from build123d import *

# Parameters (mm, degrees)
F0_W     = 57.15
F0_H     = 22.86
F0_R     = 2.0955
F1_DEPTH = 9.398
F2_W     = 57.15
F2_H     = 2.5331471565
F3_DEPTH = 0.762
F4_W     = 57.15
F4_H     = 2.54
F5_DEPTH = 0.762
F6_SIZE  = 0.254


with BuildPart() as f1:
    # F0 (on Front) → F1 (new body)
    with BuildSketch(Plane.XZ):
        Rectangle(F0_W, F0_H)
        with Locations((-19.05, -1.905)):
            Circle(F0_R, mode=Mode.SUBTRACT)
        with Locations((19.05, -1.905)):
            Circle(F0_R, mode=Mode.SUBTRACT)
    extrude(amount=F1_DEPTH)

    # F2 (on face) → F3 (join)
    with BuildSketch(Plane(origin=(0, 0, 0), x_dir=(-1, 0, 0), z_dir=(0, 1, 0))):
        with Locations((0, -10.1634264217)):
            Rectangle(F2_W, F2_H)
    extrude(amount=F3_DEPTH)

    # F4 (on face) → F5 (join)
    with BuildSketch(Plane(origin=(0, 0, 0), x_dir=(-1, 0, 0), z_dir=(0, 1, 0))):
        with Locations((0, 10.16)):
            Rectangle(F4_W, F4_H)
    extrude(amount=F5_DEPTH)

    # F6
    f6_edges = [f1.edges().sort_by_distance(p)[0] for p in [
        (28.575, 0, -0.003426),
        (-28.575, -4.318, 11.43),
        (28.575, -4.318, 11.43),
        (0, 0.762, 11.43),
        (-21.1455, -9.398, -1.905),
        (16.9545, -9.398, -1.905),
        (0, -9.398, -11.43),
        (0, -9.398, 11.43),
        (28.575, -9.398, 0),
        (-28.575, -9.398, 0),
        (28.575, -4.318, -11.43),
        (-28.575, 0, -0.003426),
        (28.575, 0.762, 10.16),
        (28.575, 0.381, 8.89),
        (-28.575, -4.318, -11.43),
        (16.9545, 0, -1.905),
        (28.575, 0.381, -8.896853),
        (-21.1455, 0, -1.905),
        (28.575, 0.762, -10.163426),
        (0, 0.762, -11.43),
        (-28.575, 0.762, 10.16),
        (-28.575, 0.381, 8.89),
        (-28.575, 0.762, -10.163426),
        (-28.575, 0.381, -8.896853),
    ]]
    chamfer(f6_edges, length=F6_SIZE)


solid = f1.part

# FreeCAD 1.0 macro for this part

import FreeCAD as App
import Part
import Sketcher
Q = App.Units.Quantity


def edges_at(feature, points):
    """Names of the edges that pass closest to the given points."""
    edges = feature.Shape.Edges
    near = lambda p: min(range(len(edges)), key=lambda i: edges[i].distToShape(Part.Vertex(*p))[0])
    return sorted({f"Edge{near(p) + 1}" for p in points})

doc = App.newDocument("Part")
body = doc.addObject("PartDesign::Body", "Body")

# Sketch on XZ plane
sketch1 = body.newObject("Sketcher::SketchObject", "Sketch")
sketch1.AttachmentSupport = (doc.getObject("XZ_Plane"), [""])
sketch1.MapMode = "FlatFace"
sketch1.addGeometry(Part.LineSegment(App.Vector(-28.6, 11.4, 0), App.Vector(-28.6, -11.4, 0)), False)
sketch1.addGeometry(Part.LineSegment(App.Vector(-28.6, -11.4, 0), App.Vector(28.6, -11.4, 0)), False)
sketch1.addGeometry(Part.LineSegment(App.Vector(28.6, -11.4, 0), App.Vector(28.6, 11.4, 0)), False)
sketch1.addGeometry(Part.LineSegment(App.Vector(28.6, 11.4, 0), App.Vector(-28.6, 11.4, 0)), False)
sketch1.addGeometry(Part.Circle(App.Vector(-19.1, -1.9, 0), App.Vector(0, 0, 1), 2.1), False)
sketch1.addGeometry(Part.Circle(App.Vector(19.1, -1.9, 0), App.Vector(0, 0, 1), 2.1), False)
sketch1.addConstraint(Sketcher.Constraint("Coincident", 0, 2, 1, 1))
sketch1.addConstraint(Sketcher.Constraint("Coincident", 1, 2, 2, 1))
sketch1.addConstraint(Sketcher.Constraint("Coincident", 2, 2, 3, 1))
sketch1.addConstraint(Sketcher.Constraint("Coincident", 3, 2, 0, 1))
sketch1.addConstraint(Sketcher.Constraint("Vertical", 0))
sketch1.addConstraint(Sketcher.Constraint("Horizontal", 1))
sketch1.addConstraint(Sketcher.Constraint("Vertical", 2))
sketch1.addConstraint(Sketcher.Constraint("Horizontal", 3))
sketch1.addConstraint(Sketcher.Constraint("Equal", 4, 5))
sketch1.addConstraint(Sketcher.Constraint("Symmetric", 0, 2, 2, 2, -1, 1))
sketch1.addConstraint(Sketcher.Constraint("Symmetric", 4, 3, 5, 3, -2))
sketch1.addConstraint(Sketcher.Constraint("Diameter", 4, Q("0.165 in")))
sketch1.addConstraint(Sketcher.Constraint("DistanceY", 0, 2, 0, 1, Q("0.9 in")))
sketch1.addConstraint(Sketcher.Constraint("DistanceX", 1, 1, 1, 2, Q("2.25 in")))
sketch1.addConstraint(Sketcher.Constraint("DistanceX", 4, 3, 5, 3, Q("1.5 in")))
sketch1.addConstraint(Sketcher.Constraint("DistanceY", 4, 3, -1, 1, Q("0.075 in")))
pad1 = body.newObject("PartDesign::Pad", "Pad")
pad1.Profile = sketch1
pad1.Length = Q("0.37 in")

# Sketch on XZ plane
sketch2 = body.newObject("Sketcher::SketchObject", "Sketch001")
sketch2.AttachmentSupport = (doc.getObject("XZ_Plane"), [""])
sketch2.MapMode = "FlatFace"
sketch2.addGeometry(Part.LineSegment(App.Vector(28.6, -8.9, 0), App.Vector(28.6, -11.4, 0)), False)
sketch2.addGeometry(Part.LineSegment(App.Vector(28.6, -11.4, 0), App.Vector(-28.6, -11.4, 0)), False)
sketch2.addGeometry(Part.LineSegment(App.Vector(-28.6, -11.4, 0), App.Vector(-28.6, -8.9, 0)), False)
sketch2.addGeometry(Part.LineSegment(App.Vector(-28.6, -8.9, 0), App.Vector(28.6, -8.9, 0)), False)
sketch2.addConstraint(Sketcher.Constraint("Coincident", 0, 2, 1, 1))
sketch2.addConstraint(Sketcher.Constraint("Coincident", 1, 2, 2, 1))
sketch2.addConstraint(Sketcher.Constraint("Coincident", 2, 2, 3, 1))
sketch2.addConstraint(Sketcher.Constraint("Coincident", 3, 2, 0, 1))
sketch2.addConstraint(Sketcher.Constraint("Vertical", 0))
sketch2.addConstraint(Sketcher.Constraint("Horizontal", 1))
sketch2.addConstraint(Sketcher.Constraint("Vertical", 2))
sketch2.addConstraint(Sketcher.Constraint("Horizontal", 3))
sketch2.addConstraint(Sketcher.Constraint("DistanceX", 1, 2, 1, 1, Q("2.25 in")))
sketch2.addConstraint(Sketcher.Constraint("DistanceY", 0, 2, -1, 1, Q("0.45 in")))
sketch2.addConstraint(Sketcher.Constraint("DistanceX", -1, 1, 0, 2, Q("1.125 in")))
sketch2.addConstraint(Sketcher.Constraint("DistanceY", 0, 2, 0, 1, Q("2.533147 mm")))
pad2 = body.newObject("PartDesign::Pad", "Pad001")
pad2.Profile = sketch2
pad2.Length = Q("0.03 in")
pad2.Reversed = True

# Sketch on XZ plane
sketch3 = body.newObject("Sketcher::SketchObject", "Sketch002")
sketch3.AttachmentSupport = (doc.getObject("XZ_Plane"), [""])
sketch3.MapMode = "FlatFace"
sketch3.addGeometry(Part.LineSegment(App.Vector(28.6, 11.4, 0), App.Vector(28.6, 8.9, 0)), False)
sketch3.addGeometry(Part.LineSegment(App.Vector(28.6, 8.9, 0), App.Vector(-28.6, 8.9, 0)), False)
sketch3.addGeometry(Part.LineSegment(App.Vector(-28.6, 8.9, 0), App.Vector(-28.6, 11.4, 0)), False)
sketch3.addGeometry(Part.LineSegment(App.Vector(-28.6, 11.4, 0), App.Vector(28.6, 11.4, 0)), False)
sketch3.addConstraint(Sketcher.Constraint("Coincident", 0, 2, 1, 1))
sketch3.addConstraint(Sketcher.Constraint("Coincident", 1, 2, 2, 1))
sketch3.addConstraint(Sketcher.Constraint("Coincident", 2, 2, 3, 1))
sketch3.addConstraint(Sketcher.Constraint("Coincident", 3, 2, 0, 1))
sketch3.addConstraint(Sketcher.Constraint("Vertical", 0))
sketch3.addConstraint(Sketcher.Constraint("Horizontal", 1))
sketch3.addConstraint(Sketcher.Constraint("Vertical", 2))
sketch3.addConstraint(Sketcher.Constraint("Horizontal", 3))
sketch3.addConstraint(Sketcher.Constraint("DistanceY", 0, 2, 0, 1, Q("0.1 in")))
sketch3.addConstraint(Sketcher.Constraint("DistanceX", 1, 2, 1, 1, Q("2.25 in")))
sketch3.addConstraint(Sketcher.Constraint("DistanceY", -1, 1, 0, 2, Q("0.35 in")))
sketch3.addConstraint(Sketcher.Constraint("DistanceX", -1, 1, 0, 2, Q("1.125 in")))
pad3 = body.newObject("PartDesign::Pad", "Pad002")
pad3.Profile = sketch3
pad3.Length = Q("0.03 in")
pad3.Reversed = True
doc.recompute()

chamfer = body.newObject("PartDesign::Chamfer", "Chamfer")
chamfer.Base = (pad3, edges_at(pad3, [
    (28.575, 0, -0.003),
    (-28.575, -4.318, 11.43),
    (28.575, -4.318, 11.43),
    (0, 0.762, 11.43),
    (-21.145, -9.398, -1.905),
    (16.954, -9.398, -1.905),
    (0, -9.398, -11.43),
    (0, -9.398, 11.43),
    (28.575, -9.398, 0),
    (-28.575, -9.398, 0),
    (28.575, -4.699, -11.43),
    (-28.575, 0, -0.003),
    (28.575, 0.762, 10.16),
    (28.575, 0.381, 8.89),
    (-28.575, -4.699, -11.43),
    (16.954, 0, -1.905),
    (28.575, 0.381, -8.897),
    (-21.145, 0, -1.905),
    (28.575, 0.762, -10.163),
    (0, 0.762, -11.43),
    (-28.575, 0.762, 10.16),
    (-28.575, 0.381, 8.89),
    (-28.575, 0.762, -10.163),
    (-28.575, 0.381, -8.897),
]))
chamfer.Size = Q("0.01 in")

doc.recompute()
